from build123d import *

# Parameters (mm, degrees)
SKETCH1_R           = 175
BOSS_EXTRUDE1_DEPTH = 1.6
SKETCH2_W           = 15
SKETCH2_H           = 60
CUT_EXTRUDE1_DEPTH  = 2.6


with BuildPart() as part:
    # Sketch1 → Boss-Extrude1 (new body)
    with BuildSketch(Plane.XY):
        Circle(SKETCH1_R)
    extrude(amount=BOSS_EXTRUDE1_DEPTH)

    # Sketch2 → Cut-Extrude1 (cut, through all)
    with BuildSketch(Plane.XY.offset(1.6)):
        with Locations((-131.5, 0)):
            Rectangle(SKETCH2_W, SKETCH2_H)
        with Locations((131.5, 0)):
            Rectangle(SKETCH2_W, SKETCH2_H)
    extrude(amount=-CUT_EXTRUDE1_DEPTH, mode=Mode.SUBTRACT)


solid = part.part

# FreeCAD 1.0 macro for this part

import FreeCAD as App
import Part
import Sketcher

V = App.Vector
Q = App.Units.Quantity

doc = App.newDocument("Part")
params = doc.addObject("Spreadsheet::Sheet", "Params")
for row, (alias, value) in enumerate([
    ("sketch1_diameter", "350 mm"),
    ("pad1_length", "1.6 mm"),
    ("sketch2_width", "15 mm"),
    ("sketch2_height", "60 mm"),
], start=1):
    params.set(f"A{row}", alias)
    params.set(f"B{row}", "=" + value)
    params.setAlias(f"B{row}", alias)

body = doc.addObject("PartDesign::Body", "Body")

# Sketch on XY plane
sketch1 = body.newObject("Sketcher::SketchObject", "Sketch")
sketch1.AttachmentSupport = (doc.getObject("XY_Plane"), [""])
sketch1.MapMode = "FlatFace"
sketch1.addGeometry(Part.Circle(V(0, 0, 0), V(0, 0, 1), 175), False)
sketch1.addConstraint(Sketcher.Constraint("Coincident", 0, 3, -1, 1))
sketch1.addConstraint(Sketcher.Constraint("Diameter", 0, Q("350 mm")))
sketch1.setExpression("Constraints[1]", "Params.sketch1_diameter")
pad1 = body.newObject("PartDesign::Pad", "Pad")
pad1.Profile = sketch1
pad1.setExpression("Length", "Params.pad1_length")

# Sketch on XY plane
sketch2 = body.newObject("Sketcher::SketchObject", "Sketch001")
sketch2.AttachmentSupport = (doc.getObject("XY_Plane"), [""])
sketch2.MapMode = "FlatFace"
sketch2.AttachmentOffset = App.Placement(V(0, 0, 1.6), App.Rotation())
sketch2.addGeometry(Part.LineSegment(V(-139, 30, 0), V(-139, -30, 0)), False)
sketch2.addGeometry(Part.LineSegment(V(-139, -30, 0), V(-124, -30, 0)), False)
sketch2.addGeometry(Part.LineSegment(V(-124, -30, 0), V(-124, 30, 0)), False)
sketch2.addGeometry(Part.LineSegment(V(-124, 30, 0), V(-139, 30, 0)), False)
sketch2.addGeometry(Part.LineSegment(V(124, 30, 0), V(124, -30, 0)), False)
sketch2.addGeometry(Part.LineSegment(V(124, -30, 0), V(139, -30, 0)), False)
sketch2.addGeometry(Part.LineSegment(V(139, -30, 0), V(139, 30, 0)), False)
sketch2.addGeometry(Part.LineSegment(V(139, 30, 0), V(124, 30, 0)), False)
sketch2.addConstraint(Sketcher.Constraint("Coincident", 0, 2, 1, 1))
sketch2.addConstraint(Sketcher.Constraint("Coincident", 1, 2, 2, 1))
sketch2.addConstraint(Sketcher.Constraint("Coincident", 2, 2, 3, 1))
sketch2.addConstraint(Sketcher.Constraint("Coincident", 3, 2, 0, 1))
sketch2.addConstraint(Sketcher.Constraint("Coincident", 4, 2, 5, 1))
sketch2.addConstraint(Sketcher.Constraint("Coincident", 5, 2, 6, 1))
sketch2.addConstraint(Sketcher.Constraint("Coincident", 6, 2, 7, 1))
sketch2.addConstraint(Sketcher.Constraint("Coincident", 7, 2, 4, 1))
sketch2.addConstraint(Sketcher.Constraint("Vertical", 0))
sketch2.addConstraint(Sketcher.Constraint("Horizontal", 1))
sketch2.addConstraint(Sketcher.Constraint("Vertical", 2))
sketch2.addConstraint(Sketcher.Constraint("Horizontal", 3))
sketch2.addConstraint(Sketcher.Constraint("Vertical", 4))
sketch2.addConstraint(Sketcher.Constraint("Horizontal", 5))
sketch2.addConstraint(Sketcher.Constraint("Vertical", 6))
sketch2.addConstraint(Sketcher.Constraint("Horizontal", 7))
sketch2.addConstraint(Sketcher.Constraint("Symmetric", 2, 2, 4, 2, -1, 1))
sketch2.addConstraint(Sketcher.Constraint("Symmetric", 0, 2, 6, 2, -1, 1))
sketch2.addConstraint(Sketcher.Constraint("Horizontal", 1, 2, 4, 2))
sketch2.addConstraint(Sketcher.Constraint("DistanceX", 1, 1, 1, 2, Q("15 mm")))
sketch2.addConstraint(Sketcher.Constraint("DistanceY", 0, 2, 0, 1, Q("60 mm")))
sketch2.addConstraint(Sketcher.Constraint("DistanceX", 0, 2, -1, 1, Q("139 mm")))
sketch2.setExpression("Constraints[19]", "Params.sketch2_width")
sketch2.setExpression("Constraints[20]", "Params.sketch2_height")
pocket1 = body.newObject("PartDesign::Pocket", "Pocket")
pocket1.Profile = sketch2
pocket1.Type = "ThroughAll"

doc.recompute()
